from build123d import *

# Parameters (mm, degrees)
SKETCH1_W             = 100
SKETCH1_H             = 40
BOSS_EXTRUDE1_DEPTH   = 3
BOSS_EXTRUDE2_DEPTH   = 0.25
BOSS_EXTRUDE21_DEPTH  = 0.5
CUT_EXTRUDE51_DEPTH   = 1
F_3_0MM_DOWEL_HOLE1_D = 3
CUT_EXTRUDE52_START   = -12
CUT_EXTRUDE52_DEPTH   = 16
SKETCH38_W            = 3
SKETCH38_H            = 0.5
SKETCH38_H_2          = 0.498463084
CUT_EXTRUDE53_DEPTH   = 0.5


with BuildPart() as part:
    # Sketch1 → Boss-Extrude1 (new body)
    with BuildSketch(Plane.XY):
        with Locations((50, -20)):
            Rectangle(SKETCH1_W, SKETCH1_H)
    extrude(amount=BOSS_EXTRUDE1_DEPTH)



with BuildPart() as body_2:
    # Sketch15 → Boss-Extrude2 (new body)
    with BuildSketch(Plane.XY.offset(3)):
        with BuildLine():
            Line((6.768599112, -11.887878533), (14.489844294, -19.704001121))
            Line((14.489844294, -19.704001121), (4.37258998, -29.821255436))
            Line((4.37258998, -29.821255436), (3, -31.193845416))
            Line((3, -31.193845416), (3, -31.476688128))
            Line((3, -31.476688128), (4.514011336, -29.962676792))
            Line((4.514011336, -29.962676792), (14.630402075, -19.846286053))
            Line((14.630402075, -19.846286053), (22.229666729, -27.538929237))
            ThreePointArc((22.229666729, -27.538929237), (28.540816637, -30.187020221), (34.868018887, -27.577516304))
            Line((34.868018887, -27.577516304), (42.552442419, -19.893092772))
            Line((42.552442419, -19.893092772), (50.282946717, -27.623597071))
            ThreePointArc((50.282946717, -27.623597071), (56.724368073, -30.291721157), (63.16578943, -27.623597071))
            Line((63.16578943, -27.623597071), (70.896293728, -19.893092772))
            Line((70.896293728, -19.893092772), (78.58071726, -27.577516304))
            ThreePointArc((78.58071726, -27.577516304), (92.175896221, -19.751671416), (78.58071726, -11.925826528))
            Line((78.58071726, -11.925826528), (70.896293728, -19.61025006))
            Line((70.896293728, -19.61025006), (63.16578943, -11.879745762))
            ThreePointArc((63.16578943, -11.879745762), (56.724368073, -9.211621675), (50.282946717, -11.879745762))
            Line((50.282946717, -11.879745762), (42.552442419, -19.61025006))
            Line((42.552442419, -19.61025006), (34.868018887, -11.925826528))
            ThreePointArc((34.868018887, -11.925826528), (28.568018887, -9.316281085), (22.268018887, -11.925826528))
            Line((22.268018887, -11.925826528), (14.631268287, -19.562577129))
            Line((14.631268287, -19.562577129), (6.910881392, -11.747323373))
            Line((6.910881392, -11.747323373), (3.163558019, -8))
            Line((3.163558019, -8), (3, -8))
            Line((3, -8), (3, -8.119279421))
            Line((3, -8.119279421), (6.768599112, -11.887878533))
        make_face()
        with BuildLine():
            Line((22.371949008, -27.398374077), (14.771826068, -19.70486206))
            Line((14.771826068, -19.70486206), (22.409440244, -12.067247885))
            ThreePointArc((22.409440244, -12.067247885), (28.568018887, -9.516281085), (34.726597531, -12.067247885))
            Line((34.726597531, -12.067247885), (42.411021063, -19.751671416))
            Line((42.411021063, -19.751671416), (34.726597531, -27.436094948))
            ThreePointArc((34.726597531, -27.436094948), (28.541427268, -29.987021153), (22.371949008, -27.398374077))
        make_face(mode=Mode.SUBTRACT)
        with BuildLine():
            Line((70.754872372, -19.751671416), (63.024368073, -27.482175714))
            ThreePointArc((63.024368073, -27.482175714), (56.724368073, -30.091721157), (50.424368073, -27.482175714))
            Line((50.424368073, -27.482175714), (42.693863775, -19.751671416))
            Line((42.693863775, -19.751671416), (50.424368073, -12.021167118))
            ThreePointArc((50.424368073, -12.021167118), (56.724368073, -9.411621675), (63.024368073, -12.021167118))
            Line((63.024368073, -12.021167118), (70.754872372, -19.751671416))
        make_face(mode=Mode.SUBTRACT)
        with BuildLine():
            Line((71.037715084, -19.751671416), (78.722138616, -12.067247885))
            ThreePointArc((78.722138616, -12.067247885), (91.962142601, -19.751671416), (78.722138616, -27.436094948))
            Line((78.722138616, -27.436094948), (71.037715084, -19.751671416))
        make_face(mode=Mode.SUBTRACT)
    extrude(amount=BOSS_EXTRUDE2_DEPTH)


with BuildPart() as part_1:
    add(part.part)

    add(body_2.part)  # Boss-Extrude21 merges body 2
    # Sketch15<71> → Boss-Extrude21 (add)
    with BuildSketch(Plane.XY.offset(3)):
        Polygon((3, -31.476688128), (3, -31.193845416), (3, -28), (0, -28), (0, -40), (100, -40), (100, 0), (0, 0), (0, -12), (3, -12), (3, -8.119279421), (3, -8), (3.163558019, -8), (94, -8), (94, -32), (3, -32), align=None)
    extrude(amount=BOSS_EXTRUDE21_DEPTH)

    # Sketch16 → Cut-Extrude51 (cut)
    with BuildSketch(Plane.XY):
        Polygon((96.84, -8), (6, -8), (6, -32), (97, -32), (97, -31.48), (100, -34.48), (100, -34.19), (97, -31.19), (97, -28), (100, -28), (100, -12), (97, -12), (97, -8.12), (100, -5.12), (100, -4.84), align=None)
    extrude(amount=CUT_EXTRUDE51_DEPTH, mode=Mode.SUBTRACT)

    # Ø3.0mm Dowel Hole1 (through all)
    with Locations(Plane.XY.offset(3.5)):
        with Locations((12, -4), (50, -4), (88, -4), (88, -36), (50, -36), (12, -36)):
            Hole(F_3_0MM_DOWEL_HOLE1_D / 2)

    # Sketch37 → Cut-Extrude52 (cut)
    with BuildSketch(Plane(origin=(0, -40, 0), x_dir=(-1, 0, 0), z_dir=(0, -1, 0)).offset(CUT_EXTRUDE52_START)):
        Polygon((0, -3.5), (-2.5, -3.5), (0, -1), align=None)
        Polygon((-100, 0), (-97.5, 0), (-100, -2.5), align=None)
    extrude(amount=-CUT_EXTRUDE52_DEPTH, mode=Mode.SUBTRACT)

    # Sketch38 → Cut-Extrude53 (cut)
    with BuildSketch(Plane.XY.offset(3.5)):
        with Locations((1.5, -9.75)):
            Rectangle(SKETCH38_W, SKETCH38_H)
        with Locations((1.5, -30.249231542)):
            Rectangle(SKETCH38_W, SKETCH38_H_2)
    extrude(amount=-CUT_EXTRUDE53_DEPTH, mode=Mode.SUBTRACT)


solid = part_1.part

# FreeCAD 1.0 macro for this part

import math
import FreeCAD as App
import Part
import Sketcher


def add_polygon(sketch, points):
    """Adds a closed chain of lines whose ends are joined by coincident constraints."""
    first, n = sketch.GeometryCount, len(points)
    for a, b in zip(points, points[1:] + points[:1]):
        sketch.addGeometry(Part.LineSegment(App.Vector(*a, 0), App.Vector(*b, 0)), False)
    for i in range(n):
        sketch.addConstraint(Sketcher.Constraint("Coincident", first + i, 2, first + (i + 1) % n, 1))

doc = App.newDocument("Part")
body = doc.addObject("PartDesign::Body", "Body")

# Sketch on XY plane
sketch1 = body.newObject("Sketcher::SketchObject", "Sketch")
sketch1.AttachmentSupport = (doc.getObject("XY_Plane"), [""])
sketch1.MapMode = "FlatFace"
add_polygon(sketch1, [(0, 0), (0, -40), (100, -40), (100, 0)])  # lines 0-3
sketch1.addConstraint([
    Sketcher.Constraint("Vertical", 0),
    Sketcher.Constraint("Horizontal", 1),
    Sketcher.Constraint("Vertical", 2),
    Sketcher.Constraint("Horizontal", 3),
    Sketcher.Constraint("Coincident", 3, 2, -1, 1),
    Sketcher.Constraint("DistanceX", 1, 1, 1, 2, 100.0),
    Sketcher.Constraint("DistanceY", 0, 2, 0, 1, 40.0),
])
pad1 = body.newObject("PartDesign::Pad", "Pad")
pad1.Profile = sketch1
pad1.Length = 3
body2 = doc.addObject("PartDesign::Body", "Body001")

# Sketch on XY plane
sketch2 = body2.newObject("Sketcher::SketchObject", "Sketch001")
sketch2.AttachmentSupport = (doc.getObject("XY_Plane001"), [""])
sketch2.MapMode = "FlatFace"
sketch2.AttachmentOffset = App.Placement(App.Vector(0, 0, 3), App.Rotation())
sketch2.addGeometry([
    Part.LineSegment(App.Vector(6.768599, -11.887879, 0), App.Vector(14.489844, -19.704001, 0)),  # 0
    Part.LineSegment(App.Vector(14.489844, -19.704001, 0), App.Vector(4.37259, -29.821255, 0)),  # 1
    Part.LineSegment(App.Vector(4.37259, -29.821255, 0), App.Vector(3, -31.193845, 0)),  # 2
    Part.LineSegment(App.Vector(3, -31.193845, 0), App.Vector(3, -31.476688, 0)),  # 3
    Part.LineSegment(App.Vector(3, -31.476688, 0), App.Vector(14.630402, -19.846286, 0)),  # 4
    Part.LineSegment(App.Vector(14.630402, -19.846286, 0), App.Vector(22.229667, -27.538929, 0)),  # 5
    Part.ArcOfCircle(Part.Circle(App.Vector(28.568019, -21.277516, 0), App.Vector(0, 0, 1), 8.909545), math.radians(-135.349867), math.radians(-45)),  # 6
    Part.LineSegment(App.Vector(34.868019, -27.577516, 0), App.Vector(42.552442, -19.893093, 0)),  # 7
    Part.LineSegment(App.Vector(42.552442, -19.893093, 0), App.Vector(50.282947, -27.623597, 0)),  # 8
    Part.ArcOfCircle(Part.Circle(App.Vector(56.724368, -21.182176, 0), App.Vector(0, 0, 1), 9.109545), math.radians(-135), math.radians(-45)),  # 9
    Part.LineSegment(App.Vector(63.165789, -27.623597, 0), App.Vector(70.896294, -19.893093, 0)),  # 10
    Part.LineSegment(App.Vector(70.896294, -19.893093, 0), App.Vector(78.580717, -27.577516, 0)),  # 11
    Part.ArcOfCircle(Part.Circle(App.Vector(83.125896, -19.751671, 0), App.Vector(0, 0, 1), 9.05), math.radians(-120.147627), math.radians(120.147627)),  # 12
    Part.LineSegment(App.Vector(78.580717, -11.925827, 0), App.Vector(70.896294, -19.61025, 0)),  # 13
    Part.LineSegment(App.Vector(70.896294, -19.61025, 0), App.Vector(63.165789, -11.879746, 0)),  # 14
    Part.ArcOfCircle(Part.Circle(App.Vector(56.724368, -18.321167, 0), App.Vector(0, 0, 1), 9.109545), math.radians(45), math.radians(135)),  # 15
    Part.LineSegment(App.Vector(50.282947, -11.879746, 0), App.Vector(42.552442, -19.61025, 0)),  # 16
    Part.LineSegment(App.Vector(42.552442, -19.61025, 0), App.Vector(34.868019, -11.925827, 0)),  # 17
    Part.ArcOfCircle(Part.Circle(App.Vector(28.568019, -18.225827, 0), App.Vector(0, 0, 1), 8.909545), math.radians(45), math.radians(135)),  # 18
    Part.LineSegment(App.Vector(22.268019, -11.925827, 0), App.Vector(14.631268, -19.562577, 0)),  # 19
    Part.LineSegment(App.Vector(14.631268, -19.562577, 0), App.Vector(6.910881, -11.747323, 0)),  # 20
    Part.LineSegment(App.Vector(6.910881, -11.747323, 0), App.Vector(3.163558, -8, 0)),  # 21
    Part.LineSegment(App.Vector(3.163558, -8, 0), App.Vector(3, -8, 0)),  # 22
    Part.LineSegment(App.Vector(3, -8, 0), App.Vector(3, -8.119279, 0)),  # 23
    Part.LineSegment(App.Vector(3, -8.119279, 0), App.Vector(6.768599, -11.887879, 0)),  # 24
    Part.ArcOfCircle(Part.Circle(App.Vector(28.568019, -21.277516, 0), App.Vector(0, 0, 1), 8.709545), math.radians(-135.349867), math.radians(-45)),  # 25
    Part.LineSegment(App.Vector(22.371949, -27.398374, 0), App.Vector(14.771826, -19.704862, 0)),  # 26
    Part.LineSegment(App.Vector(14.771826, -19.704862, 0), App.Vector(22.40944, -12.067248, 0)),  # 27
    Part.ArcOfCircle(Part.Circle(App.Vector(28.568019, -18.225827, 0), App.Vector(0, 0, 1), 8.709545), math.radians(45), math.radians(135)),  # 28
    Part.LineSegment(App.Vector(34.726598, -12.067248, 0), App.Vector(42.411021, -19.751671, 0)),  # 29
    Part.LineSegment(App.Vector(42.411021, -19.751671, 0), App.Vector(34.726598, -27.436095, 0)),  # 30
    Part.LineSegment(App.Vector(78.722139, -27.436095, 0), App.Vector(71.037715, -19.751671, 0)),  # 31
    Part.LineSegment(App.Vector(71.037715, -19.751671, 0), App.Vector(78.722139, -12.067248, 0)),  # 32
    Part.ArcOfCircle(Part.Circle(App.Vector(83.112143, -19.751671, 0), App.Vector(0, 0, 1), 8.85), math.radians(-119.738725), math.radians(119.738725)),  # 33
    Part.LineSegment(App.Vector(63.024368, -12.021167, 0), App.Vector(70.754872, -19.751671, 0)),  # 34
    Part.LineSegment(App.Vector(70.754872, -19.751671, 0), App.Vector(63.024368, -27.482176, 0)),  # 35
    Part.ArcOfCircle(Part.Circle(App.Vector(56.724368, -21.182176, 0), App.Vector(0, 0, 1), 8.909545), math.radians(-135), math.radians(-45)),  # 36
    Part.LineSegment(App.Vector(50.424368, -27.482176, 0), App.Vector(42.693864, -19.751671, 0)),  # 37
    Part.LineSegment(App.Vector(42.693864, -19.751671, 0), App.Vector(50.424368, -12.021167, 0)),  # 38
    Part.ArcOfCircle(Part.Circle(App.Vector(56.724368, -18.321167, 0), App.Vector(0, 0, 1), 8.909545), math.radians(45), math.radians(135)),  # 39
], False)
sketch2.addConstraint([
    Sketcher.Constraint("Coincident", 0, 2, 1, 1),
    Sketcher.Constraint("Coincident", 1, 2, 2, 1),
    Sketcher.Constraint("Coincident", 2, 2, 3, 1),
    Sketcher.Constraint("Coincident", 3, 2, 4, 1),
    Sketcher.Constraint("Coincident", 4, 2, 5, 1),
    Sketcher.Constraint("Tangent", 5, 2, 6, 1),
    Sketcher.Constraint("Tangent", 6, 2, 7, 1),
    Sketcher.Constraint("Coincident", 7, 2, 8, 1),
    Sketcher.Constraint("Tangent", 8, 2, 9, 1),
    Sketcher.Constraint("Tangent", 9, 2, 10, 1),
    Sketcher.Constraint("Coincident", 10, 2, 11, 1),
    Sketcher.Constraint("Coincident", 11, 2, 12, 1),
    Sketcher.Constraint("Coincident", 12, 2, 13, 1),
    Sketcher.Constraint("Coincident", 13, 2, 14, 1),
    Sketcher.Constraint("Tangent", 14, 2, 15, 1),
    Sketcher.Constraint("Tangent", 15, 2, 16, 1),
    Sketcher.Constraint("Coincident", 16, 2, 17, 1),
    Sketcher.Constraint("Tangent", 17, 2, 18, 1),
    Sketcher.Constraint("Tangent", 18, 2, 19, 1),
    Sketcher.Constraint("Coincident", 19, 2, 20, 1),
    Sketcher.Constraint("Coincident", 20, 2, 21, 1),
    Sketcher.Constraint("Coincident", 21, 2, 22, 1),
    Sketcher.Constraint("Coincident", 22, 2, 23, 1),
    Sketcher.Constraint("Coincident", 23, 2, 24, 1),
    Sketcher.Constraint("Coincident", 24, 2, 0, 1),
    Sketcher.Constraint("Tangent", 25, 1, 26, 1),
    Sketcher.Constraint("Coincident", 26, 2, 27, 1),
    Sketcher.Constraint("Tangent", 27, 2, 28, 2),
    Sketcher.Constraint("Tangent", 28, 1, 29, 1),
    Sketcher.Constraint("Coincident", 29, 2, 30, 1),
    Sketcher.Constraint("Tangent", 30, 2, 25, 2),
    Sketcher.Constraint("Coincident", 31, 2, 32, 1),
    Sketcher.Constraint("Coincident", 32, 2, 33, 2),
    Sketcher.Constraint("Coincident", 33, 1, 31, 1),
    Sketcher.Constraint("Coincident", 34, 2, 35, 1),
    Sketcher.Constraint("Tangent", 35, 2, 36, 2),
    Sketcher.Constraint("Tangent", 36, 1, 37, 1),
    Sketcher.Constraint("Coincident", 37, 2, 38, 1),
    Sketcher.Constraint("Tangent", 38, 2, 39, 2),
    Sketcher.Constraint("Tangent", 39, 1, 34, 1),
    Sketcher.Constraint("Vertical", 3),
    Sketcher.Constraint("Horizontal", 22),
    Sketcher.Constraint("Vertical", 23),
    Sketcher.Constraint("Coincident", 25, 3, 6, 3),
    Sketcher.Constraint("Coincident", 28, 3, 18, 3),
    Sketcher.Constraint("Coincident", 36, 3, 9, 3),
    Sketcher.Constraint("Coincident", 39, 3, 15, 3),
    Sketcher.Constraint("Equal", 9, 15),
    Sketcher.Constraint("Equal", 6, 18),
    Sketcher.Constraint("Equal", 25, 28),
    Sketcher.Constraint("Equal", 18, 36),
    Sketcher.Constraint("Equal", 36, 39),
    Sketcher.Constraint("Parallel", 1, 2),
    Sketcher.Constraint("Parallel", 2, 4),
    Sketcher.Constraint("Parallel", 0, 5),
    Sketcher.Constraint("Parallel", 4, 7),
    Sketcher.Constraint("Perpendicular", 7, 8),
    Sketcher.Constraint("Perpendicular", 8, 10),
    Sketcher.Constraint("Perpendicular", 10, 11),
    Sketcher.Constraint("Perpendicular", 11, 13),
    Sketcher.Constraint("Perpendicular", 13, 14),
    Sketcher.Constraint("Perpendicular", 14, 16),
    Sketcher.Constraint("Perpendicular", 16, 17),
    Sketcher.Constraint("Perpendicular", 17, 19),
    Sketcher.Constraint("Parallel", 5, 20),
    Sketcher.Constraint("Perpendicular", 19, 21),
    Sketcher.Constraint("Parallel", 21, 24),
    Sketcher.Constraint("Parallel", 20, 26),
    Sketcher.Constraint("Perpendicular", 24, 27),
    Sketcher.Constraint("Perpendicular", 27, 29),
    Sketcher.Constraint("Perpendicular", 29, 30),
    Sketcher.Constraint("Perpendicular", 30, 31),
    Sketcher.Constraint("Perpendicular", 31, 32),
    Sketcher.Constraint("Perpendicular", 32, 34),
    Sketcher.Constraint("Perpendicular", 34, 35),
    Sketcher.Constraint("Perpendicular", 35, 37),
    Sketcher.Constraint("Perpendicular", 37, 38),
    Sketcher.Constraint("Horizontal", 12, 3, 33, 3),
    Sketcher.Constraint("Horizontal", 8, 2, 9, 2),
    Sketcher.Constraint("Horizontal", 7, 2, 10, 2),
    Sketcher.Constraint("Horizontal", 6, 2, 11, 2),
    Sketcher.Constraint("Horizontal", 13, 2, 16, 2),
    Sketcher.Constraint("Horizontal", 12, 2, 17, 2),
    Sketcher.Constraint("Horizontal", 33, 3, 29, 2),
    Sketcher.Constraint("Horizontal", 29, 2, 31, 2),
    Sketcher.Constraint("Horizontal", 28, 1, 32, 2),
    Sketcher.Constraint("Horizontal", 30, 2, 33, 1),
    Sketcher.Constraint("Horizontal", 31, 2, 34, 2),
    Sketcher.Constraint("Vertical", 3, 2, 22, 2),
    Sketcher.Constraint("Equal", 17, 29),
    Sketcher.Constraint("Equal", 16, 34),
    Sketcher.Constraint("Radius", 12, 9.05),
    Sketcher.Constraint("Radius", 33, 8.85),
    Sketcher.Constraint("DistanceX", -1, 1, 2, 2, 3.0),
    Sketcher.Constraint("DistanceY", 21, 2, -1, 1, 8.0),
    Sketcher.Constraint("DistanceX", 6, 3, 6, 2, 6.3),
    Sketcher.Constraint("DistanceY", 0, 2, -1, 1, 19.704001),
    Sketcher.Constraint("Radius", 9, 9.109545),
    Sketcher.Constraint("DistanceX", 22, 2, 22, 1, 0.163558),
    Sketcher.Constraint("DistanceY", 23, 2, 23, 1, 0.119279),
    Sketcher.Constraint("DistanceX", -1, 1, 24, 2, 6.768599),
    Sketcher.Constraint("DistanceX", 19, 2, 5, 2, 7.598398),
    Sketcher.Constraint("Distance", 1, 14.307958),
    Sketcher.Constraint("Distance", 20, 10.985562),
    Sketcher.Constraint("DistanceY", 3, 2, 3, 1, 0.282843),
    Sketcher.Constraint("DistanceX", -1, 1, 6, 3, 28.568019),
    Sketcher.Constraint("DistanceX", -1, 1, 9, 3, 56.724368),
    Sketcher.Constraint("DistanceY", 12, 3, -1, 1, 19.751671),
    Sketcher.Constraint("DistanceX", -1, 1, 1, 2, 4.37259),
    Sketcher.Constraint("DistanceX", -1, 1, 32, 2, 78.722139),
])
pad2 = body2.newObject("PartDesign::Pad", "Pad001")
pad2.Profile = sketch2
pad2.Length = 0.25
doc.recompute()

boolean = body.newObject("PartDesign::Boolean", "Boolean")
boolean.Type = "Fuse"
boolean.addObjects([body2])

# Sketch on XY plane
sketch3 = body.newObject("Sketcher::SketchObject", "Sketch002")
sketch3.AttachmentSupport = (doc.getObject("XY_Plane"), [""])
sketch3.MapMode = "FlatFace"
sketch3.AttachmentOffset = App.Placement(App.Vector(0, 0, 3), App.Rotation())
add_polygon(sketch3, [(3, -28), (0, -28), (0, -40), (100, -40), (100, 0), (0, 0), (0, -12), (3, -12), (3, -8), (94, -8), (94, -32), (3, -32)])  # lines 0-11
sketch3.addConstraint([
    Sketcher.Constraint("Horizontal", 0),
    Sketcher.Constraint("Vertical", 1),
    Sketcher.Constraint("Horizontal", 2),
    Sketcher.Constraint("Vertical", 3),
    Sketcher.Constraint("Horizontal", 4),
    Sketcher.Constraint("Vertical", 5),
    Sketcher.Constraint("Horizontal", 6),
    Sketcher.Constraint("Vertical", 7),
    Sketcher.Constraint("Horizontal", 8),
    Sketcher.Constraint("Vertical", 9),
    Sketcher.Constraint("Horizontal", 10),
    Sketcher.Constraint("Vertical", 11),
    Sketcher.Constraint("Coincident", 4, 2, -1, 1),
    Sketcher.Constraint("PointOnObject", 0, 2, -2),
    Sketcher.Constraint("Vertical", 7, 2, 10, 2),
    Sketcher.Constraint("Equal", 1, 5),
    Sketcher.Constraint("Equal", 7, 11),
    Sketcher.Constraint("DistanceX", 0, 2, 0, 1, 3.0),
    Sketcher.Constraint("DistanceX", 2, 1, 2, 2, 100.0),
    Sketcher.Constraint("DistanceX", 8, 1, 8, 2, 91.0),
    Sketcher.Constraint("DistanceY", 1, 2, 1, 1, 12.0),
    Sketcher.Constraint("DistanceY", 3, 1, 3, 2, 40.0),
    Sketcher.Constraint("DistanceY", 7, 1, 7, 2, 4.0),
])
pad3 = body.newObject("PartDesign::Pad", "Pad002")
pad3.Profile = sketch3
pad3.Length = 0.5

# Sketch on XY plane
sketch4 = body.newObject("Sketcher::SketchObject", "Sketch003")
sketch4.AttachmentSupport = (doc.getObject("XY_Plane"), [""])
sketch4.MapMode = "FlatFace"
add_polygon(sketch4, [(96.84, -8), (6, -8), (6, -32), (97, -32), (97, -31.48), (100, -34.48), (100, -34.19), (97, -31.19), (97, -28), (100, -28), (100, -12), (97, -12), (97, -8.12), (100, -5.12), (100, -4.84)])  # lines 0-14
sketch4.addConstraint([
    Sketcher.Constraint("Horizontal", 0),
    Sketcher.Constraint("Vertical", 1),
    Sketcher.Constraint("Horizontal", 2),
    Sketcher.Constraint("Vertical", 3),
    Sketcher.Constraint("Vertical", 5),
    Sketcher.Constraint("Vertical", 7),
    Sketcher.Constraint("Horizontal", 8),
    Sketcher.Constraint("Vertical", 9),
    Sketcher.Constraint("Horizontal", 10),
    Sketcher.Constraint("Vertical", 11),
    Sketcher.Constraint("Vertical", 13),
    Sketcher.Constraint("Parallel", 4, 6),
    Sketcher.Constraint("Perpendicular", 6, 12),
    Sketcher.Constraint("Parallel", 12, 14),
    Sketcher.Constraint("Vertical", 3, 2, 6, 2),
    Sketcher.Constraint("Vertical", 5, 2, 8, 2),
    Sketcher.Constraint("Vertical", 7, 2, 10, 2),
    Sketcher.Constraint("Vertical", 9, 2, 12, 2),
    Sketcher.Constraint("Equal", 6, 12),
    Sketcher.Constraint("DistanceX", 2, 1, 2, 2, 91.0),
    Sketcher.Constraint("DistanceX", 8, 1, 8, 2, 3.0),
    Sketcher.Constraint("DistanceY", 1, 2, 1, 1, 24.0),
    Sketcher.Constraint("DistanceY", 9, 1, 9, 2, 16.0),
    Sketcher.Constraint("DistanceX", -1, 1, 0, 2, 6.0),
    Sketcher.Constraint("DistanceY", 0, 2, -1, 1, 8.0),
    Sketcher.Constraint("DistanceY", 7, 2, -1, 1, 28.0),
    Sketcher.Constraint("DistanceX", 0, 2, 0, 1, 90.84),
    Sketcher.Constraint("DistanceY", 3, 1, 3, 2, 0.52),
    Sketcher.Constraint("DistanceY", 5, 1, 5, 2, 0.29),
    Sketcher.Constraint("DistanceY", 11, 1, 11, 2, 3.88),
])
pocket1 = body.newObject("PartDesign::Pocket", "Pocket")
pocket1.Profile = sketch4
pocket1.Length = 1
pocket1.Reversed = True

# Sketch on XY plane
sketch5 = body.newObject("Sketcher::SketchObject", "Sketch004")
sketch5.AttachmentSupport = (doc.getObject("XY_Plane"), [""])
sketch5.MapMode = "FlatFace"
sketch5.AttachmentOffset = App.Placement(App.Vector(0, 0, 3.5), App.Rotation())
sketch5.addGeometry([
    Part.Circle(App.Vector(12, -4, 0), App.Vector(0, 0, 1), 1.5),  # 0
    Part.Circle(App.Vector(50, -4, 0), App.Vector(0, 0, 1), 1.5),  # 1
    Part.Circle(App.Vector(88, -4, 0), App.Vector(0, 0, 1), 1.5),  # 2
    Part.Circle(App.Vector(88, -36, 0), App.Vector(0, 0, 1), 1.5),  # 3
    Part.Circle(App.Vector(50, -36, 0), App.Vector(0, 0, 1), 1.5),  # 4
    Part.Circle(App.Vector(12, -36, 0), App.Vector(0, 0, 1), 1.5),  # 5
], False)
sketch5.addConstraint([
    Sketcher.Constraint("Equal", 0, 1),
    Sketcher.Constraint("Equal", 1, 2),
    Sketcher.Constraint("Equal", 2, 3),
    Sketcher.Constraint("Equal", 3, 4),
    Sketcher.Constraint("Equal", 4, 5),
    Sketcher.Constraint("Horizontal", 0, 3, 1, 3),
    Sketcher.Constraint("Horizontal", 1, 3, 2, 3),
    Sketcher.Constraint("Horizontal", 3, 3, 4, 3),
    Sketcher.Constraint("Horizontal", 4, 3, 5, 3),
    Sketcher.Constraint("Vertical", 2, 3, 3, 3),
    Sketcher.Constraint("Vertical", 1, 3, 4, 3),
    Sketcher.Constraint("Vertical", 0, 3, 5, 3),
    Sketcher.Constraint("Diameter", 0, 3.0),
    Sketcher.Constraint("DistanceX", -1, 1, 0, 3, 12.0),
    Sketcher.Constraint("DistanceY", 0, 3, -1, 1, 4.0),
    Sketcher.Constraint("DistanceX", -1, 1, 1, 3, 50.0),
    Sketcher.Constraint("DistanceX", -1, 1, 2, 3, 88.0),
    Sketcher.Constraint("DistanceY", 3, 3, -1, 1, 36.0),
])
doc.recompute()
hole = body.newObject("PartDesign::Hole", "Hole")
hole.Profile = sketch5
hole.ThreadType = "None"
hole.Diameter = 3
hole.DepthType = "ThroughAll"

# Sketch on XZ plane
sketch6 = body.newObject("Sketcher::SketchObject", "Sketch005")
sketch6.AttachmentSupport = (doc.getObject("XZ_Plane"), [""])
sketch6.MapMode = "FlatFace"
sketch6.AttachmentOffset = App.Placement(App.Vector(0, 0, 28), App.Rotation())
add_polygon(sketch6, [(2.5, 3.5), (0, 3.5), (0, 1)])  # lines 0-2
add_polygon(sketch6, [(97.5, 0), (100, 0), (100, 2.5)])  # lines 3-5
sketch6.addConstraint([
    Sketcher.Constraint("Horizontal", 0),
    Sketcher.Constraint("Vertical", 1),
    Sketcher.Constraint("Horizontal", 3),
    Sketcher.Constraint("Vertical", 4),
    Sketcher.Constraint("PointOnObject", 0, 2, -2),
    Sketcher.Constraint("PointOnObject", 3, 2, -1),
    Sketcher.Constraint("Parallel", 2, 5),
    Sketcher.Constraint("Equal", 0, 3),
    Sketcher.Constraint("Equal", 3, 1),
    Sketcher.Constraint("DistanceX", 0, 2, 0, 1, 2.5),
    Sketcher.Constraint("DistanceY", -1, 1, 1, 2, 1.0),
    Sketcher.Constraint("DistanceX", -1, 1, 3, 2, 100.0),
])
pocket2 = body.newObject("PartDesign::Pocket", "Pocket001")
pocket2.Profile = sketch6
pocket2.Length = 16

# Sketch on XY plane
sketch7 = body.newObject("Sketcher::SketchObject", "Sketch006")
sketch7.AttachmentSupport = (doc.getObject("XY_Plane"), [""])
sketch7.MapMode = "FlatFace"
sketch7.AttachmentOffset = App.Placement(App.Vector(0, 0, 3.5), App.Rotation())
add_polygon(sketch7, [(0, -9.5), (0, -10), (3, -10), (3, -9.5)])  # lines 0-3
add_polygon(sketch7, [(0, -30), (0, -30.498463), (3, -30.498463), (3, -30)])  # lines 4-7
sketch7.addConstraint([
    Sketcher.Constraint("Vertical", 0),
    Sketcher.Constraint("Horizontal", 1),
    Sketcher.Constraint("Vertical", 2),
    Sketcher.Constraint("Horizontal", 3),
    Sketcher.Constraint("Vertical", 4),
    Sketcher.Constraint("Horizontal", 5),
    Sketcher.Constraint("Vertical", 6),
    Sketcher.Constraint("Horizontal", 7),
    Sketcher.Constraint("PointOnObject", 0, 2, -2),
    Sketcher.Constraint("PointOnObject", 4, 2, -2),
    Sketcher.Constraint("Vertical", 2, 2, 5, 2),
    Sketcher.Constraint("DistanceX", 1, 1, 1, 2, 3.0),
    Sketcher.Constraint("DistanceY", 0, 2, 0, 1, 0.5),
    Sketcher.Constraint("DistanceY", 0, 2, -1, 1, 10.0),
    Sketcher.Constraint("DistanceY", 6, 2, -1, 1, 30.0),
    Sketcher.Constraint("DistanceY", 4, 2, 4, 1, 0.498463),
])
pocket3 = body.newObject("PartDesign::Pocket", "Pocket002")
pocket3.Profile = sketch7
pocket3.Length = 0.5

doc.recompute()
